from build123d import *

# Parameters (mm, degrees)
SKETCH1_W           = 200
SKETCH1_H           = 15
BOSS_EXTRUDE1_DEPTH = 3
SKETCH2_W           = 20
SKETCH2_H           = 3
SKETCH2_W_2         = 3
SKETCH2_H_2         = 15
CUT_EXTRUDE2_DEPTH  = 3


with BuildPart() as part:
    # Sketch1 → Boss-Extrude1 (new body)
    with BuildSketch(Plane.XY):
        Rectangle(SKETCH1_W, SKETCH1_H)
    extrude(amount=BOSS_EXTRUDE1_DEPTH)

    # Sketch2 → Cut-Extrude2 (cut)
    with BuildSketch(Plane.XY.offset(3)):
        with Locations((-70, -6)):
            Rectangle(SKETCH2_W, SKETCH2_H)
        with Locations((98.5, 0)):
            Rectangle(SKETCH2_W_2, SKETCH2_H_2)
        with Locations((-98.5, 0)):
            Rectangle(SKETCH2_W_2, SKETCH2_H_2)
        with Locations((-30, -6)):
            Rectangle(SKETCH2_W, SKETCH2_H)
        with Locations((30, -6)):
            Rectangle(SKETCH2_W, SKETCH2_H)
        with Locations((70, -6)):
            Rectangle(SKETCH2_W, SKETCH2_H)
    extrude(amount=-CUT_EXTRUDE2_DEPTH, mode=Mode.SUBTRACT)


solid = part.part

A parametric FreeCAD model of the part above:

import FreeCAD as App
import Part
import Sketcher
from FreeCAD import Vector


def add_polygon(sketch, points):
    """Adds a closed chain of lines whose ends are joined by coincident constraints."""
    first, n = sketch.GeometryCount, len(points)
    for a, b in zip(points, points[1:] + points[:1]):
        sketch.addGeometry(Part.LineSegment(App.Vector(*a, 0), App.Vector(*b, 0)), False)
    for i in range(n):
        sketch.addConstraint(Sketcher.Constraint("Coincident", first + i, 2, first + (i + 1) % n, 1))

doc = App.newDocument("Part")
body = doc.addObject("PartDesign::Body", "Body")

# Sketch on XY plane
sketch1 = doc.addObject("Sketcher::SketchObject", "Sketch")
body.addObject(sketch1)
sketch1.AttachmentSupport = (doc.XY_Plane, [""])
sketch1.MapMode = "FlatFace"
add_polygon(sketch1, [(-100, 7.5), (-100, -7.5), (100, -7.5), (100, 7.5)])  # lines 0-3
sketch1.addConstraint([
    Sketcher.Constraint("Vertical", 0),
    Sketcher.Constraint("Horizontal", 1),
    Sketcher.Constraint("Vertical", 2),
    Sketcher.Constraint("Horizontal", 3),
    Sketcher.Constraint("Symmetric", 0, 2, 2, 2, -1, 1),
    Sketcher.Constraint("DistanceX", 1, 1, 1, 2, 200.0),
    Sketcher.Constraint("DistanceY", 0, 2, 0, 1, 15.0),
])
pad1 = doc.addObject("PartDesign::Pad", "Pad")
body.addObject(pad1)
pad1.Profile = sketch1
pad1.Length = 3

# Sketch on XY plane
sketch2 = doc.addObject("Sketcher::SketchObject", "Sketch001")
body.addObject(sketch2)
sketch2.AttachmentSupport = (doc.XY_Plane, [""])
sketch2.MapMode = "FlatFace"
sketch2.AttachmentOffset = App.Placement(Vector(0, 0, 3), App.Rotation())
add_polygon(sketch2, [(-80, -4.5), (-80, -7.5), (-60, -7.5), (-60, -4.5)])  # lines 0-3
add_polygon(sketch2, [(97, 7.5), (97, -7.5), (100, -7.5), (100, 7.5)])  # lines 4-7
add_polygon(sketch2, [(-100, 7.5), (-100, -7.5), (-97, -7.5), (-97, 7.5)])  # lines 8-11
add_polygon(sketch2, [(-40, -4.5), (-40, -7.5), (-20, -7.5), (-20, -4.5)])  # lines 12-15
add_polygon(sketch2, [(20, -4.5), (20, -7.5), (40, -7.5), (40, -4.5)])  # lines 16-19
add_polygon(sketch2, [(60, -4.5), (60, -7.5), (80, -7.5), (80, -4.5)])  # lines 20-23
sketch2.addConstraint([
    Sketcher.Constraint("Vertical", 0),
    Sketcher.Constraint("Horizontal", 1),
    Sketcher.Constraint("Vertical", 2),
    Sketcher.Constraint("Horizontal", 3),
    Sketcher.Constraint("Vertical", 4),
    Sketcher.Constraint("Horizontal", 5),
    Sketcher.Constraint("Vertical", 6),
    Sketcher.Constraint("Horizontal", 7),
    Sketcher.Constraint("Vertical", 8),
    Sketcher.Constraint("Horizontal", 9),
    Sketcher.Constraint("Vertical", 10),
    Sketcher.Constraint("Horizontal", 11),
    Sketcher.Constraint("Vertical", 12),
    Sketcher.Constraint("Horizontal", 13),
    Sketcher.Constraint("Vertical", 14),
    Sketcher.Constraint("Horizontal", 15),
    Sketcher.Constraint("Vertical", 16),
    Sketcher.Constraint("Horizontal", 17),
    Sketcher.Constraint("Vertical", 18),
    Sketcher.Constraint("Horizontal", 19),
    Sketcher.Constraint("Vertical", 20),
    Sketcher.Constraint("Horizontal", 21),
    Sketcher.Constraint("Vertical", 22),
    Sketcher.Constraint("Horizontal", 23),
    Sketcher.Constraint("Symmetric", 6, 2, 8, 2, -1, 1),
    Sketcher.Constraint("Symmetric", 4, 2, 10, 2, -1, 1),
    Sketcher.Constraint("Symmetric", 13, 2, 16, 2, -2),
    Sketcher.Constraint("Symmetric", 15, 2, 18, 2, -2),
    Sketcher.Constraint("Symmetric", 1, 2, 20, 2, -2),
    Sketcher.Constraint("Symmetric", 3, 2, 22, 2, -2),
    Sketcher.Constraint("Horizontal", 1, 2, 4, 2),
    Sketcher.Constraint("Horizontal", 5, 2, 8, 2),
    Sketcher.Constraint("Horizontal", 9, 2, 12, 2),
    Sketcher.Constraint("Horizontal", 3, 2, 14, 2),
    Sketcher.Constraint("Equal", 3, 13),
    Sketcher.Constraint("Equal", 11, 0),
    Sketcher.Constraint("DistanceX", 1, 1, 1, 2, 20.0),
    Sketcher.Constraint("DistanceX", 5, 1, 5, 2, 3.0),
    Sketcher.Constraint("DistanceY", 4, 2, 4, 1, 15.0),
    Sketcher.Constraint("DistanceX", 0, 2, -1, 1, 80.0),
    Sketcher.Constraint("DistanceX", -1, 1, 4, 2, 97.0),
    Sketcher.Constraint("DistanceX", 12, 2, -1, 1, 40.0),
])
pocket1 = doc.addObject("PartDesign::Pocket", "Pocket")
body.addObject(pocket1)
pocket1.Profile = sketch2
pocket1.Length = 3

doc.recompute()
